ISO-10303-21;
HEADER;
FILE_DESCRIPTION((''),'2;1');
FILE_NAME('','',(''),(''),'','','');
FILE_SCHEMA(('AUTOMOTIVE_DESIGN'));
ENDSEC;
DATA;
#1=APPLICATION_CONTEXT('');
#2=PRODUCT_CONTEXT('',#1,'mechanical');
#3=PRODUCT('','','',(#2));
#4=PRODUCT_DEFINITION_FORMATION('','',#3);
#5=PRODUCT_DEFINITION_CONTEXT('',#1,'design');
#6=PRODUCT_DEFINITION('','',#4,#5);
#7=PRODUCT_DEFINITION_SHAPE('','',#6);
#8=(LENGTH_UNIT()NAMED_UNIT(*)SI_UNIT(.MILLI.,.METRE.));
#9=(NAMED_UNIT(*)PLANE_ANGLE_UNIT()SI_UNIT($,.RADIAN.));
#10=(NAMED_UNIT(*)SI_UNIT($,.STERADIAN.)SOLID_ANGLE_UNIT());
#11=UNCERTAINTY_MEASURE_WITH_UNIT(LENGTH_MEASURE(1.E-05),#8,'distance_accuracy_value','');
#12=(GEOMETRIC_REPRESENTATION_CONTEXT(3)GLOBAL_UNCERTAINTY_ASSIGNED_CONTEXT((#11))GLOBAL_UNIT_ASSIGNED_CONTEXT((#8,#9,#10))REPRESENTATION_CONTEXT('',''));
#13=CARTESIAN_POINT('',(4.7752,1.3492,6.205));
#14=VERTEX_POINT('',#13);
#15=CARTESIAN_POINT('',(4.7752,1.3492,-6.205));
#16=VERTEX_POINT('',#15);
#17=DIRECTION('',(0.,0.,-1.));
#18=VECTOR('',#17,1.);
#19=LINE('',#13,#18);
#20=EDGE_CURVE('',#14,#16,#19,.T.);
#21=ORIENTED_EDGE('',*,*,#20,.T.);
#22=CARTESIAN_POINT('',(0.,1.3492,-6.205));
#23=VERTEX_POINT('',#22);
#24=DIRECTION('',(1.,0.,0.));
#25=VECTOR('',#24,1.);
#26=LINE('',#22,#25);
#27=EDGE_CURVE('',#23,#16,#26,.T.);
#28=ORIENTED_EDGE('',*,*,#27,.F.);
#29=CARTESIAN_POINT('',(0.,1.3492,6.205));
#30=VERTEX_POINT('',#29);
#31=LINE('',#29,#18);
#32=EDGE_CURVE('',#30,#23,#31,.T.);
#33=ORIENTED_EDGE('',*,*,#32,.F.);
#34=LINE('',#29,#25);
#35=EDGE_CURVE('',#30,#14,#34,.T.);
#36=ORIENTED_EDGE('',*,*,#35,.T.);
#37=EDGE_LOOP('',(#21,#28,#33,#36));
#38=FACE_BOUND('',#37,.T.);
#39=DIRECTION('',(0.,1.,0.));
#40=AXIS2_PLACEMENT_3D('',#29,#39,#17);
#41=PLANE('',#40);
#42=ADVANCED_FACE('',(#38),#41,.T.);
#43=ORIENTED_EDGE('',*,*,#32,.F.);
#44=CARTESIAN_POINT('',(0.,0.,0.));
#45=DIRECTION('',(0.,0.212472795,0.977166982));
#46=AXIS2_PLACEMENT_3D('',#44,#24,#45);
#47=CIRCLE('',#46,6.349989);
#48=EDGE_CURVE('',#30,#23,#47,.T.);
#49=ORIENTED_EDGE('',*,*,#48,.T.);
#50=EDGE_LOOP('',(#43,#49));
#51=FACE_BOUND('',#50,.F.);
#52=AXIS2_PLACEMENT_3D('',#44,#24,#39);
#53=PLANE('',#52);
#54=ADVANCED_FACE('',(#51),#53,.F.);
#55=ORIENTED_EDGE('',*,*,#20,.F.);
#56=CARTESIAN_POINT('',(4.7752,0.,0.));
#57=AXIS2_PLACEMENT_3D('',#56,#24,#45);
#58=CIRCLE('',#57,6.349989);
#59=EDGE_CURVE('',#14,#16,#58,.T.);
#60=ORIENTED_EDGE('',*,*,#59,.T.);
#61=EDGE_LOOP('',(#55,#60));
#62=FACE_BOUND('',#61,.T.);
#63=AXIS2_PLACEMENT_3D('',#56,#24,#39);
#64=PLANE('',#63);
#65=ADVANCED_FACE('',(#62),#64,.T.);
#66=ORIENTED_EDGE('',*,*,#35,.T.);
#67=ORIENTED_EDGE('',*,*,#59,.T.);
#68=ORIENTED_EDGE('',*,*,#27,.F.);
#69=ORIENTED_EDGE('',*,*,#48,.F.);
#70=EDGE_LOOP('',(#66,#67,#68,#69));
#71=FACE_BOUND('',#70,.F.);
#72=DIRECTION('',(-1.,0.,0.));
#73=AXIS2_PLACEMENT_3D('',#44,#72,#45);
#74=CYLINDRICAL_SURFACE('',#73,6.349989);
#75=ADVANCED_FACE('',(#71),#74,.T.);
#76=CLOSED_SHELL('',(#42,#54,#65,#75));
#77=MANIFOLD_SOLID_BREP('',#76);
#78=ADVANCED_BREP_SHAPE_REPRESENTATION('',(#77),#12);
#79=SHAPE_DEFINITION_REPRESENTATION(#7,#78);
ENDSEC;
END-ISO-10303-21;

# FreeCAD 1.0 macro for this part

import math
import FreeCAD as App
import Part
import Sketcher
Q = App.Units.Quantity

doc = App.newDocument("Part")
body = doc.addObject("PartDesign::Body", "Body")

sketch1 = doc.addObject("Sketcher::SketchObject", "Sketch")
body.addObject(sketch1)
sketch1.AttachmentSupport = (doc.YZ_Plane, [""])
sketch1.MapMode = "FlatFace"
sketch1.addGeometry([
    Part.LineSegment(App.Vector(1, -6, 0), App.Vector(1, 6, 0)),
    Part.ArcOfCircle(Part.Circle(App.Vector(0, 0, 0), App.Vector(0, 0, 1), 6), math.radians(78), math.radians(282)),
], False)
sketch1.addConstraint([
    Sketcher.Constraint("Coincident", 0, 1, 1, 2),
    Sketcher.Constraint("Coincident", 1, 1, 0, 2),
    Sketcher.Constraint("Vertical", 0),
    Sketcher.Constraint("Coincident", 1, 3, -1, 1),
    Sketcher.Constraint("Radius", 1, Q("0.25 in")),
    Sketcher.Constraint("DistanceY", 0, 1, 0, 2, Q("12.41 mm")),
])
pad1 = doc.addObject("PartDesign::Pad", "Pad")
body.addObject(pad1)
pad1.Profile = sketch1
pad1.Length = Q("0.188 in")

doc.recompute()
